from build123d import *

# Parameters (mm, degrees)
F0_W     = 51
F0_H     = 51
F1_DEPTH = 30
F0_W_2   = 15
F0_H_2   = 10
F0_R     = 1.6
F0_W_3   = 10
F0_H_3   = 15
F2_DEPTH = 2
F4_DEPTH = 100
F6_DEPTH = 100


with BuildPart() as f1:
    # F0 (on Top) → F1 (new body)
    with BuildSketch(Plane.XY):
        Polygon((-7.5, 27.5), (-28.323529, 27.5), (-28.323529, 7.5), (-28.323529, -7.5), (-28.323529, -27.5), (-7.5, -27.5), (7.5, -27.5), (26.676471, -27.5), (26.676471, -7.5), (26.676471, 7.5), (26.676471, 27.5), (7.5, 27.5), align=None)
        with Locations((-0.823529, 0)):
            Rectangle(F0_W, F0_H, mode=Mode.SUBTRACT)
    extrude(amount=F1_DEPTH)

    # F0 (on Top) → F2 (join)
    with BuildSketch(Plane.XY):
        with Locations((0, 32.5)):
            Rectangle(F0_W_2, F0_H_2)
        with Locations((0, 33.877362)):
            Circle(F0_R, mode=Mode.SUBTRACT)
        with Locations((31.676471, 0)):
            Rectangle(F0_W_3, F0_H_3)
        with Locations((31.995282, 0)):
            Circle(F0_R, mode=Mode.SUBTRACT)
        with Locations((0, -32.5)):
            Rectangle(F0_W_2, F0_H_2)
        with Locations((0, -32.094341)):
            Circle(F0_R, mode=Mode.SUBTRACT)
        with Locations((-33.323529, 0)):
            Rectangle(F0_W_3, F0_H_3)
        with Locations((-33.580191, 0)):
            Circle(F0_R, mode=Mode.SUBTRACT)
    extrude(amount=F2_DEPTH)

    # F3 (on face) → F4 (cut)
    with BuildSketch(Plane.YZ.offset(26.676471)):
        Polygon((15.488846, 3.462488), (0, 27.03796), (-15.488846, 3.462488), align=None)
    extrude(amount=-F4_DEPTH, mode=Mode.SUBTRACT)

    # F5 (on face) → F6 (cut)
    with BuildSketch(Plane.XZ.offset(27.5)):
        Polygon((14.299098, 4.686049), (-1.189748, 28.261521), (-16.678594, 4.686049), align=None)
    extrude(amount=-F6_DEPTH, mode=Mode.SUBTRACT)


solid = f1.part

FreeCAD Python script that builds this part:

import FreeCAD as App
import Part
import Sketcher

V = App.Vector

doc = App.newDocument("Part")
params = doc.addObject("Spreadsheet::Sheet", "Params")
for row, (alias, value) in enumerate([
    ("sketch1_width", "55 mm"),
    ("sketch1_width2", "51 mm"),
    ("pad1_length", "30 mm"),
    ("sketch2_diameter", "3.2 mm"),
    ("sketch2_width", "15 mm"),
    ("sketch2_width2", "10 mm"),
    ("pad2_length", "2 mm"),
    ("pocket1_length", "100 mm"),
    ("pocket2_length", "100 mm"),
], start=1):
    params.set(f"A{row}", alias)
    params.set(f"B{row}", "=" + value)
    params.setAlias(f"B{row}", alias)

body = doc.addObject("PartDesign::Body", "Body")

# Sketch on XY plane
sketch1 = body.newObject("Sketcher::SketchObject", "Sketch")
sketch1.AttachmentSupport = (doc.getObject("XY_Plane"), [""])
sketch1.MapMode = "FlatFace"
sketch1.addGeometry([
    Part.LineSegment(V(-28.323529, 27.5, 0), V(-28.323529, -27.5, 0)),  # 0
    Part.LineSegment(V(-28.323529, -27.5, 0), V(26.676471, -27.5, 0)),  # 1
    Part.LineSegment(V(26.676471, -27.5, 0), V(26.676471, 27.5, 0)),  # 2
    Part.LineSegment(V(26.676471, 27.5, 0), V(-28.323529, 27.5, 0)),  # 3
    Part.LineSegment(V(24.676471, -25.5, 0), V(-26.323529, -25.5, 0)),  # 4
    Part.LineSegment(V(-26.323529, -25.5, 0), V(-26.323529, 25.5, 0)),  # 5
    Part.LineSegment(V(-26.323529, 25.5, 0), V(24.676471, 25.5, 0)),  # 6
    Part.LineSegment(V(24.676471, 25.5, 0), V(24.676471, -25.5, 0)),  # 7
], False)
sketch1.addConstraint([
    Sketcher.Constraint("Coincident", 0, 2, 1, 1),
    Sketcher.Constraint("Coincident", 1, 2, 2, 1),
    Sketcher.Constraint("Coincident", 2, 2, 3, 1),
    Sketcher.Constraint("Coincident", 3, 2, 0, 1),
    Sketcher.Constraint("Coincident", 4, 2, 5, 1),
    Sketcher.Constraint("Coincident", 5, 2, 6, 1),
    Sketcher.Constraint("Coincident", 6, 2, 7, 1),
    Sketcher.Constraint("Coincident", 7, 2, 4, 1),
    Sketcher.Constraint("Vertical", 0),
    Sketcher.Constraint("Horizontal", 1),
    Sketcher.Constraint("Vertical", 2),
    Sketcher.Constraint("Horizontal", 3),
    Sketcher.Constraint("Horizontal", 4),
    Sketcher.Constraint("Vertical", 5),
    Sketcher.Constraint("Horizontal", 6),
    Sketcher.Constraint("Vertical", 7),
    Sketcher.Constraint("Equal", 3, 0),
    Sketcher.Constraint("Equal", 6, 5),
    Sketcher.Constraint("DistanceX", 1, 1, 1, 2, 55.0),
    Sketcher.Constraint("DistanceX", 4, 2, 4, 1, 51.0),
    Sketcher.Constraint("DistanceX", 0, 2, 4, 2, 2.0),
    Sketcher.Constraint("DistanceY", 0, 2, 4, 2, 2.0),
    Sketcher.Constraint("DistanceY", 0, 2, -1, 1, 27.5),
    Sketcher.Constraint("DistanceX", 0, 2, -1, 1, 28.323529),
])
sketch1.setExpression("Constraints[18]", "Params.sketch1_width")
sketch1.setExpression("Constraints[19]", "Params.sketch1_width2")
pad1 = body.newObject("PartDesign::Pad", "Pad")
pad1.Profile = sketch1
pad1.setExpression("Length", "Params.pad1_length")

# Sketch on XY plane
sketch2 = body.newObject("Sketcher::SketchObject", "Sketch001")
sketch2.AttachmentSupport = (doc.getObject("XY_Plane"), [""])
sketch2.MapMode = "FlatFace"
sketch2.addGeometry([
    Part.LineSegment(V(-7.5, 37.5, 0), V(-7.5, 27.5, 0)),  # 0
    Part.LineSegment(V(-7.5, 27.5, 0), V(7.5, 27.5, 0)),  # 1
    Part.LineSegment(V(7.5, 27.5, 0), V(7.5, 37.5, 0)),  # 2
    Part.LineSegment(V(7.5, 37.5, 0), V(-7.5, 37.5, 0)),  # 3
    Part.Circle(V(0, 33.877362, 0), V(0, 0, 1), 1.6),  # 4
    Part.LineSegment(V(26.676471, 7.5, 0), V(26.676471, -7.5, 0)),  # 5
    Part.LineSegment(V(26.676471, -7.5, 0), V(36.676471, -7.5, 0)),  # 6
    Part.LineSegment(V(36.676471, -7.5, 0), V(36.676471, 7.5, 0)),  # 7
    Part.LineSegment(V(36.676471, 7.5, 0), V(26.676471, 7.5, 0)),  # 8
    Part.Circle(V(31.995282, 0, 0), V(0, 0, 1), 1.6),  # 9
    Part.LineSegment(V(-7.5, -27.5, 0), V(-7.5, -37.5, 0)),  # 10
    Part.LineSegment(V(-7.5, -37.5, 0), V(7.5, -37.5, 0)),  # 11
    Part.LineSegment(V(7.5, -37.5, 0), V(7.5, -27.5, 0)),  # 12
    Part.LineSegment(V(7.5, -27.5, 0), V(-7.5, -27.5, 0)),  # 13
    Part.Circle(V(0, -32.094341, 0), V(0, 0, 1), 1.6),  # 14
    Part.LineSegment(V(-38.323529, 7.5, 0), V(-38.323529, -7.5, 0)),  # 15
    Part.LineSegment(V(-38.323529, -7.5, 0), V(-28.323529, -7.5, 0)),  # 16
    Part.LineSegment(V(-28.323529, -7.5, 0), V(-28.323529, 7.5, 0)),  # 17
    Part.LineSegment(V(-28.323529, 7.5, 0), V(-38.323529, 7.5, 0)),  # 18
    Part.Circle(V(-33.580191, 0, 0), V(0, 0, 1), 1.6),  # 19
], False)
sketch2.addConstraint([
    Sketcher.Constraint("Coincident", 0, 2, 1, 1),
    Sketcher.Constraint("Coincident", 1, 2, 2, 1),
    Sketcher.Constraint("Coincident", 2, 2, 3, 1),
    Sketcher.Constraint("Coincident", 3, 2, 0, 1),
    Sketcher.Constraint("Coincident", 5, 2, 6, 1),
    Sketcher.Constraint("Coincident", 6, 2, 7, 1),
    Sketcher.Constraint("Coincident", 7, 2, 8, 1),
    Sketcher.Constraint("Coincident", 8, 2, 5, 1),
    Sketcher.Constraint("Coincident", 10, 2, 11, 1),
    Sketcher.Constraint("Coincident", 11, 2, 12, 1),
    Sketcher.Constraint("Coincident", 12, 2, 13, 1),
    Sketcher.Constraint("Coincident", 13, 2, 10, 1),
    Sketcher.Constraint("Coincident", 15, 2, 16, 1),
    Sketcher.Constraint("Coincident", 16, 2, 17, 1),
    Sketcher.Constraint("Coincident", 17, 2, 18, 1),
    Sketcher.Constraint("Coincident", 18, 2, 15, 1),
    Sketcher.Constraint("Vertical", 0),
    Sketcher.Constraint("Horizontal", 1),
    Sketcher.Constraint("Vertical", 2),
    Sketcher.Constraint("Horizontal", 3),
    Sketcher.Constraint("Vertical", 5),
    Sketcher.Constraint("Horizontal", 6),
    Sketcher.Constraint("Vertical", 7),
    Sketcher.Constraint("Horizontal", 8),
    Sketcher.Constraint("Vertical", 10),
    Sketcher.Constraint("Horizontal", 11),
    Sketcher.Constraint("Vertical", 12),
    Sketcher.Constraint("Horizontal", 13),
    Sketcher.Constraint("Vertical", 15),
    Sketcher.Constraint("Horizontal", 16),
    Sketcher.Constraint("Vertical", 17),
    Sketcher.Constraint("Horizontal", 18),
    Sketcher.Constraint("Equal", 4, 9),
    Sketcher.Constraint("Equal", 9, 14),
    Sketcher.Constraint("Equal", 14, 19),
    Sketcher.Constraint("Symmetric", 2, 2, 10, 2, -1, 1),
    Sketcher.Constraint("Symmetric", 0, 2, 12, 2, -1, 1),
    Sketcher.Constraint("PointOnObject", 4, 3, -2),
    Sketcher.Constraint("PointOnObject", 9, 3, -1),
    Sketcher.Constraint("PointOnObject", 14, 3, -2),
    Sketcher.Constraint("PointOnObject", 19, 3, -1),
    Sketcher.Constraint("Horizontal", 6, 2, 15, 2),
    Sketcher.Constraint("Horizontal", 8, 2, 17, 2),
    Sketcher.Constraint("Vertical", 3, 2, 10, 2),
    Sketcher.Constraint("Equal", 8, 16),
    Sketcher.Constraint("Equal", 18, 0),
    Sketcher.Constraint("Equal", 13, 5),
    Sketcher.Constraint("Diameter", 4, 3.2),
    Sketcher.Constraint("DistanceX", 1, 1, 1, 2, 15.0),
    Sketcher.Constraint("DistanceX", 6, 1, 6, 2, 10.0),
    Sketcher.Constraint("DistanceY", 5, 2, 1, 2, 35.0),
    Sketcher.Constraint("DistanceY", 10, 2, 5, 2, 30.0),
    Sketcher.Constraint("DistanceY", -1, 1, 4, 3, 33.877362),
    Sketcher.Constraint("DistanceX", -1, 1, 9, 3, 31.995282),
    Sketcher.Constraint("DistanceY", 14, 3, -1, 1, 32.094341),
    Sketcher.Constraint("DistanceX", 19, 3, -1, 1, 33.580191),
    Sketcher.Constraint("DistanceX", -1, 1, 5, 2, 26.676471),
    Sketcher.Constraint("DistanceX", 15, 2, -1, 1, 38.323529),
])
sketch2.setExpression("Constraints[47]", "Params.sketch2_diameter")
sketch2.setExpression("Constraints[48]", "Params.sketch2_width")
sketch2.setExpression("Constraints[49]", "Params.sketch2_width2")
pad2 = body.newObject("PartDesign::Pad", "Pad001")
pad2.Profile = sketch2
pad2.setExpression("Length", "Params.pad2_length")

# Sketch on YZ plane
sketch3 = body.newObject("Sketcher::SketchObject", "Sketch002")
sketch3.AttachmentSupport = (doc.getObject("YZ_Plane"), [""])
sketch3.MapMode = "FlatFace"
sketch3.AttachmentOffset = App.Placement(V(0, 0, 26.676471), App.Rotation())
sketch3.addGeometry([
    Part.LineSegment(V(15.488846, 3.462488, 0), V(0, 27.03796, 0)),
    Part.LineSegment(V(0, 27.03796, 0), V(-15.488846, 3.462488, 0)),
    Part.LineSegment(V(-15.488846, 3.462488, 0), V(15.488846, 3.462488, 0)),
], False)
sketch3.addConstraint([
    Sketcher.Constraint("Coincident", 0, 2, 1, 1),
    Sketcher.Constraint("Coincident", 1, 2, 2, 1),
    Sketcher.Constraint("Coincident", 2, 2, 0, 1),
    Sketcher.Constraint("Horizontal", 2),
    Sketcher.Constraint("PointOnObject", 0, 2, -2),
    Sketcher.Constraint("Equal", 0, 1),
    Sketcher.Constraint("DistanceX", 2, 1, 2, 2, 30.977692),
    Sketcher.Constraint("DistanceY", -1, 1, 0, 2, 27.03796),
    Sketcher.Constraint("DistanceY", -1, 1, 1, 2, 3.462488),
])
pocket1 = body.newObject("PartDesign::Pocket", "Pocket")
pocket1.Profile = sketch3
pocket1.setExpression("Length", "Params.pocket1_length")

# Sketch on XZ plane
sketch4 = body.newObject("Sketcher::SketchObject", "Sketch003")
sketch4.AttachmentSupport = (doc.getObject("XZ_Plane"), [""])
sketch4.MapMode = "FlatFace"
sketch4.AttachmentOffset = App.Placement(V(0, 0, 27.5), App.Rotation())
sketch4.addGeometry([
    Part.LineSegment(V(14.299098, 4.686049, 0), V(-1.189748, 28.261521, 0)),
    Part.LineSegment(V(-1.189748, 28.261521, 0), V(-16.678594, 4.686049, 0)),
    Part.LineSegment(V(-16.678594, 4.686049, 0), V(14.299098, 4.686049, 0)),
], False)
sketch4.addConstraint([
    Sketcher.Constraint("Coincident", 0, 2, 1, 1),
    Sketcher.Constraint("Coincident", 1, 2, 2, 1),
    Sketcher.Constraint("Coincident", 2, 2, 0, 1),
    Sketcher.Constraint("Horizontal", 2),
    Sketcher.Constraint("Equal", 0, 1),
    Sketcher.Constraint("DistanceX", -1, 1, 2, 2, 14.299098),
    Sketcher.Constraint("DistanceX", 2, 1, 2, 2, 30.977692),
    Sketcher.Constraint("DistanceY", -1, 1, 0, 2, 28.261521),
    Sketcher.Constraint("DistanceY", -1, 1, 1, 2, 4.686049),
])
pocket2 = body.newObject("PartDesign::Pocket", "Pocket001")
pocket2.Profile = sketch4
pocket2.setExpression("Length", "Params.pocket2_length")

doc.recompute()
